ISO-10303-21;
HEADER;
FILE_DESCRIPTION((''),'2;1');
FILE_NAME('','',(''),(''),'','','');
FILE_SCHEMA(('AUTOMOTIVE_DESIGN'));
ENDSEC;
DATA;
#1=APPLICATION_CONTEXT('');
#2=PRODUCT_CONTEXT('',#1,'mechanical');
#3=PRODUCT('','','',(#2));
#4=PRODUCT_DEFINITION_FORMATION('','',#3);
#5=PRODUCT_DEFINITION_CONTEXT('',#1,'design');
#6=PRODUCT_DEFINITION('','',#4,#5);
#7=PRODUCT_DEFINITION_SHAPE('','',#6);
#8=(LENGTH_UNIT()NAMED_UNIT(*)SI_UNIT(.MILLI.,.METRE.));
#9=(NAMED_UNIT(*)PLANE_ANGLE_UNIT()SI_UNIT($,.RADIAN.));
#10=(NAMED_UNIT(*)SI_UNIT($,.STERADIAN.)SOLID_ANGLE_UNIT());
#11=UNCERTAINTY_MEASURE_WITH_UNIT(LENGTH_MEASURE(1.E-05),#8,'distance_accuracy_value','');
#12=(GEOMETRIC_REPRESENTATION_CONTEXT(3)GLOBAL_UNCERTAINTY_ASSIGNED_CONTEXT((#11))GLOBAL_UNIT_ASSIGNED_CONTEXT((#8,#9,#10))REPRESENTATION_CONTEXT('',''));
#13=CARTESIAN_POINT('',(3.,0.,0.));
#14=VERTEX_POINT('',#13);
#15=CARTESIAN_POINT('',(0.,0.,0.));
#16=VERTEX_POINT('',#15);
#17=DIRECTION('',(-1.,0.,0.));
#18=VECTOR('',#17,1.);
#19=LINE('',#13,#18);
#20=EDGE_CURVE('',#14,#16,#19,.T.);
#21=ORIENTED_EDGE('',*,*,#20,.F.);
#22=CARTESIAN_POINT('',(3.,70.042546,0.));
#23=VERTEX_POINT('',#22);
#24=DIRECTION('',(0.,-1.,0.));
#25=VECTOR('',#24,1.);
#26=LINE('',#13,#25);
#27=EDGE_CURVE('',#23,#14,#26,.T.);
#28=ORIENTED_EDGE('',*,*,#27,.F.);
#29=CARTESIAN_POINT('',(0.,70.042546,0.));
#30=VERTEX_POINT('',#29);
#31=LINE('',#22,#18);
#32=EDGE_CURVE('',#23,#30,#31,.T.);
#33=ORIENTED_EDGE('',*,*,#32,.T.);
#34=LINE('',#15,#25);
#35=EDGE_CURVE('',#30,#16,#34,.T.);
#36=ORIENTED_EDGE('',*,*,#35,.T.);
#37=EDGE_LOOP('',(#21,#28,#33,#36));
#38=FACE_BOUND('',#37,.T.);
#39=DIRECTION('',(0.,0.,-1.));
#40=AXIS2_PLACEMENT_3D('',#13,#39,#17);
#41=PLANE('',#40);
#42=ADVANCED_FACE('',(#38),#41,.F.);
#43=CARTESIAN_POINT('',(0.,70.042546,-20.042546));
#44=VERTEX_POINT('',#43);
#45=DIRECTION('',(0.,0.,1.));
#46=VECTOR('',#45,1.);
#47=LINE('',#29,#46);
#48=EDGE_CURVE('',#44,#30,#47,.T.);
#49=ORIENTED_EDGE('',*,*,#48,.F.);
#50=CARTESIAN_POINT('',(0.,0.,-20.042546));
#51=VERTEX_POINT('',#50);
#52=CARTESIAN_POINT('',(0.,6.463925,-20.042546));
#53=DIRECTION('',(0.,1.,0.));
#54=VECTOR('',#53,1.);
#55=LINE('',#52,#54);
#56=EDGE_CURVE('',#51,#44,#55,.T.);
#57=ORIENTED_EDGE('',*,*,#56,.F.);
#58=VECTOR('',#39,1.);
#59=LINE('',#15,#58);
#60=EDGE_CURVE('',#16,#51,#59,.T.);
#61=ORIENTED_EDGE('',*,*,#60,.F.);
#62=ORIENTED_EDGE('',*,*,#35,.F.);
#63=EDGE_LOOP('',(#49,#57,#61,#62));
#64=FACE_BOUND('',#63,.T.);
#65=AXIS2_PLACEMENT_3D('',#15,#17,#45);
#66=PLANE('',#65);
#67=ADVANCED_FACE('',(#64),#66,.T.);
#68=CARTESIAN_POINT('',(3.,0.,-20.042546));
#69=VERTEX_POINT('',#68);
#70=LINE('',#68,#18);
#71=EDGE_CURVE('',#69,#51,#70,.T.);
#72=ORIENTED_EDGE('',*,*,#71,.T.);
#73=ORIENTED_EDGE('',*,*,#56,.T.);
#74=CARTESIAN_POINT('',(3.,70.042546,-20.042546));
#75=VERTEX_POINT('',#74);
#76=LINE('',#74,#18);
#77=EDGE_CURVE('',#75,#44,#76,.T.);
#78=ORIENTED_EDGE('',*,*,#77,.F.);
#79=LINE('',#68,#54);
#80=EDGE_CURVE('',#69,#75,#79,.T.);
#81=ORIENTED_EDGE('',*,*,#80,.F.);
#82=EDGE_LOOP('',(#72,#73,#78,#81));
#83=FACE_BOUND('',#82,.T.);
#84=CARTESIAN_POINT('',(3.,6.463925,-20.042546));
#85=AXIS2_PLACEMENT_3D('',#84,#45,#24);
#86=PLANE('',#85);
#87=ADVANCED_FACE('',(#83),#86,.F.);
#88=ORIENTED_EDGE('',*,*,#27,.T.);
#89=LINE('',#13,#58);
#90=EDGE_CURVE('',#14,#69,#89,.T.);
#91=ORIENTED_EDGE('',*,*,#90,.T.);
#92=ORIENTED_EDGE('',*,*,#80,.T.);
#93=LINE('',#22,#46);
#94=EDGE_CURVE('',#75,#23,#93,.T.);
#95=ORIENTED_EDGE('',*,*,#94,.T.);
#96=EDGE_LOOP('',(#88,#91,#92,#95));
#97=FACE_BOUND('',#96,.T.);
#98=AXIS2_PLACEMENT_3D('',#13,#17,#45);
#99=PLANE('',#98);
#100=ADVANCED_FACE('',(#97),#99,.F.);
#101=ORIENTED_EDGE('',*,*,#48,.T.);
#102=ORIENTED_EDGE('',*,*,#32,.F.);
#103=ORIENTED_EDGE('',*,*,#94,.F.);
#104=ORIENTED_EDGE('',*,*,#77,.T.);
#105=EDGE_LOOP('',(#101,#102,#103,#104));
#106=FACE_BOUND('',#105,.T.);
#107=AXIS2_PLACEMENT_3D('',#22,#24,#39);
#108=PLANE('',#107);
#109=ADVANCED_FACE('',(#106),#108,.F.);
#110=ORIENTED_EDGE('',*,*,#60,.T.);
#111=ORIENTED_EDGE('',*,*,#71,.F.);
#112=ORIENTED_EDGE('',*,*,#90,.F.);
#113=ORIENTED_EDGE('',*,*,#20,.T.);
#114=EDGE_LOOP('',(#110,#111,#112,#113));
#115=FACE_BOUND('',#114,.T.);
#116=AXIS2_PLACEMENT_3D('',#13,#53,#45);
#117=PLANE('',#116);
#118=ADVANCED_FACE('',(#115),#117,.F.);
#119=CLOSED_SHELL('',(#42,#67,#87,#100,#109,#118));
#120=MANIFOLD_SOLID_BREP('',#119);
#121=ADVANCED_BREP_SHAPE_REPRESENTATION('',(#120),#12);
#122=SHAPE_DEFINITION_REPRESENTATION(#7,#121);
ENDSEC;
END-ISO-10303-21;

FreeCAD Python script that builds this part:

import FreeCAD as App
import Part
import Sketcher
Q = App.Units.Quantity


def add_polygon(sketch, points):
    """Adds a closed chain of lines whose ends are joined by coincident constraints."""
    first, n = sketch.GeometryCount, len(points)
    for a, b in zip(points, points[1:] + points[:1]):
        sketch.addGeometry(Part.LineSegment(App.Vector(*a, 0), App.Vector(*b, 0)), False)
    for i in range(n):
        sketch.addConstraint(Sketcher.Constraint("Coincident", first + i, 2, first + (i + 1) % n, 1))

doc = App.newDocument("Part")
body = doc.addObject("PartDesign::Body", "Body")

# Sketch on YZ plane
sketch1 = doc.addObject("Sketcher::SketchObject", "Sketch")
body.addObject(sketch1)
sketch1.AttachmentSupport = (doc.YZ_Plane, [""])
sketch1.MapMode = "FlatFace"
add_polygon(sketch1, [(0, -20.042546), (70.042546, -20.042546), (70.042546, 0), (0, 0)])  # lines 0-3
sketch1.addConstraint([
    Sketcher.Constraint("Horizontal", 0),
    Sketcher.Constraint("Vertical", 1),
    Sketcher.Constraint("Horizontal", 2),
    Sketcher.Constraint("Vertical", 3),
    Sketcher.Constraint("Coincident", 2, 2, -1, 1),
    Sketcher.Constraint("DistanceX", 0, 1, 0, 2, Q("70.042546 mm")),
    Sketcher.Constraint("DistanceY", 1, 1, 1, 2, Q("20.042546 mm")),
])
pad1 = doc.addObject("PartDesign::Pad", "Pad")
body.addObject(pad1)
pad1.Profile = sketch1
pad1.Length = 3

doc.recompute()
